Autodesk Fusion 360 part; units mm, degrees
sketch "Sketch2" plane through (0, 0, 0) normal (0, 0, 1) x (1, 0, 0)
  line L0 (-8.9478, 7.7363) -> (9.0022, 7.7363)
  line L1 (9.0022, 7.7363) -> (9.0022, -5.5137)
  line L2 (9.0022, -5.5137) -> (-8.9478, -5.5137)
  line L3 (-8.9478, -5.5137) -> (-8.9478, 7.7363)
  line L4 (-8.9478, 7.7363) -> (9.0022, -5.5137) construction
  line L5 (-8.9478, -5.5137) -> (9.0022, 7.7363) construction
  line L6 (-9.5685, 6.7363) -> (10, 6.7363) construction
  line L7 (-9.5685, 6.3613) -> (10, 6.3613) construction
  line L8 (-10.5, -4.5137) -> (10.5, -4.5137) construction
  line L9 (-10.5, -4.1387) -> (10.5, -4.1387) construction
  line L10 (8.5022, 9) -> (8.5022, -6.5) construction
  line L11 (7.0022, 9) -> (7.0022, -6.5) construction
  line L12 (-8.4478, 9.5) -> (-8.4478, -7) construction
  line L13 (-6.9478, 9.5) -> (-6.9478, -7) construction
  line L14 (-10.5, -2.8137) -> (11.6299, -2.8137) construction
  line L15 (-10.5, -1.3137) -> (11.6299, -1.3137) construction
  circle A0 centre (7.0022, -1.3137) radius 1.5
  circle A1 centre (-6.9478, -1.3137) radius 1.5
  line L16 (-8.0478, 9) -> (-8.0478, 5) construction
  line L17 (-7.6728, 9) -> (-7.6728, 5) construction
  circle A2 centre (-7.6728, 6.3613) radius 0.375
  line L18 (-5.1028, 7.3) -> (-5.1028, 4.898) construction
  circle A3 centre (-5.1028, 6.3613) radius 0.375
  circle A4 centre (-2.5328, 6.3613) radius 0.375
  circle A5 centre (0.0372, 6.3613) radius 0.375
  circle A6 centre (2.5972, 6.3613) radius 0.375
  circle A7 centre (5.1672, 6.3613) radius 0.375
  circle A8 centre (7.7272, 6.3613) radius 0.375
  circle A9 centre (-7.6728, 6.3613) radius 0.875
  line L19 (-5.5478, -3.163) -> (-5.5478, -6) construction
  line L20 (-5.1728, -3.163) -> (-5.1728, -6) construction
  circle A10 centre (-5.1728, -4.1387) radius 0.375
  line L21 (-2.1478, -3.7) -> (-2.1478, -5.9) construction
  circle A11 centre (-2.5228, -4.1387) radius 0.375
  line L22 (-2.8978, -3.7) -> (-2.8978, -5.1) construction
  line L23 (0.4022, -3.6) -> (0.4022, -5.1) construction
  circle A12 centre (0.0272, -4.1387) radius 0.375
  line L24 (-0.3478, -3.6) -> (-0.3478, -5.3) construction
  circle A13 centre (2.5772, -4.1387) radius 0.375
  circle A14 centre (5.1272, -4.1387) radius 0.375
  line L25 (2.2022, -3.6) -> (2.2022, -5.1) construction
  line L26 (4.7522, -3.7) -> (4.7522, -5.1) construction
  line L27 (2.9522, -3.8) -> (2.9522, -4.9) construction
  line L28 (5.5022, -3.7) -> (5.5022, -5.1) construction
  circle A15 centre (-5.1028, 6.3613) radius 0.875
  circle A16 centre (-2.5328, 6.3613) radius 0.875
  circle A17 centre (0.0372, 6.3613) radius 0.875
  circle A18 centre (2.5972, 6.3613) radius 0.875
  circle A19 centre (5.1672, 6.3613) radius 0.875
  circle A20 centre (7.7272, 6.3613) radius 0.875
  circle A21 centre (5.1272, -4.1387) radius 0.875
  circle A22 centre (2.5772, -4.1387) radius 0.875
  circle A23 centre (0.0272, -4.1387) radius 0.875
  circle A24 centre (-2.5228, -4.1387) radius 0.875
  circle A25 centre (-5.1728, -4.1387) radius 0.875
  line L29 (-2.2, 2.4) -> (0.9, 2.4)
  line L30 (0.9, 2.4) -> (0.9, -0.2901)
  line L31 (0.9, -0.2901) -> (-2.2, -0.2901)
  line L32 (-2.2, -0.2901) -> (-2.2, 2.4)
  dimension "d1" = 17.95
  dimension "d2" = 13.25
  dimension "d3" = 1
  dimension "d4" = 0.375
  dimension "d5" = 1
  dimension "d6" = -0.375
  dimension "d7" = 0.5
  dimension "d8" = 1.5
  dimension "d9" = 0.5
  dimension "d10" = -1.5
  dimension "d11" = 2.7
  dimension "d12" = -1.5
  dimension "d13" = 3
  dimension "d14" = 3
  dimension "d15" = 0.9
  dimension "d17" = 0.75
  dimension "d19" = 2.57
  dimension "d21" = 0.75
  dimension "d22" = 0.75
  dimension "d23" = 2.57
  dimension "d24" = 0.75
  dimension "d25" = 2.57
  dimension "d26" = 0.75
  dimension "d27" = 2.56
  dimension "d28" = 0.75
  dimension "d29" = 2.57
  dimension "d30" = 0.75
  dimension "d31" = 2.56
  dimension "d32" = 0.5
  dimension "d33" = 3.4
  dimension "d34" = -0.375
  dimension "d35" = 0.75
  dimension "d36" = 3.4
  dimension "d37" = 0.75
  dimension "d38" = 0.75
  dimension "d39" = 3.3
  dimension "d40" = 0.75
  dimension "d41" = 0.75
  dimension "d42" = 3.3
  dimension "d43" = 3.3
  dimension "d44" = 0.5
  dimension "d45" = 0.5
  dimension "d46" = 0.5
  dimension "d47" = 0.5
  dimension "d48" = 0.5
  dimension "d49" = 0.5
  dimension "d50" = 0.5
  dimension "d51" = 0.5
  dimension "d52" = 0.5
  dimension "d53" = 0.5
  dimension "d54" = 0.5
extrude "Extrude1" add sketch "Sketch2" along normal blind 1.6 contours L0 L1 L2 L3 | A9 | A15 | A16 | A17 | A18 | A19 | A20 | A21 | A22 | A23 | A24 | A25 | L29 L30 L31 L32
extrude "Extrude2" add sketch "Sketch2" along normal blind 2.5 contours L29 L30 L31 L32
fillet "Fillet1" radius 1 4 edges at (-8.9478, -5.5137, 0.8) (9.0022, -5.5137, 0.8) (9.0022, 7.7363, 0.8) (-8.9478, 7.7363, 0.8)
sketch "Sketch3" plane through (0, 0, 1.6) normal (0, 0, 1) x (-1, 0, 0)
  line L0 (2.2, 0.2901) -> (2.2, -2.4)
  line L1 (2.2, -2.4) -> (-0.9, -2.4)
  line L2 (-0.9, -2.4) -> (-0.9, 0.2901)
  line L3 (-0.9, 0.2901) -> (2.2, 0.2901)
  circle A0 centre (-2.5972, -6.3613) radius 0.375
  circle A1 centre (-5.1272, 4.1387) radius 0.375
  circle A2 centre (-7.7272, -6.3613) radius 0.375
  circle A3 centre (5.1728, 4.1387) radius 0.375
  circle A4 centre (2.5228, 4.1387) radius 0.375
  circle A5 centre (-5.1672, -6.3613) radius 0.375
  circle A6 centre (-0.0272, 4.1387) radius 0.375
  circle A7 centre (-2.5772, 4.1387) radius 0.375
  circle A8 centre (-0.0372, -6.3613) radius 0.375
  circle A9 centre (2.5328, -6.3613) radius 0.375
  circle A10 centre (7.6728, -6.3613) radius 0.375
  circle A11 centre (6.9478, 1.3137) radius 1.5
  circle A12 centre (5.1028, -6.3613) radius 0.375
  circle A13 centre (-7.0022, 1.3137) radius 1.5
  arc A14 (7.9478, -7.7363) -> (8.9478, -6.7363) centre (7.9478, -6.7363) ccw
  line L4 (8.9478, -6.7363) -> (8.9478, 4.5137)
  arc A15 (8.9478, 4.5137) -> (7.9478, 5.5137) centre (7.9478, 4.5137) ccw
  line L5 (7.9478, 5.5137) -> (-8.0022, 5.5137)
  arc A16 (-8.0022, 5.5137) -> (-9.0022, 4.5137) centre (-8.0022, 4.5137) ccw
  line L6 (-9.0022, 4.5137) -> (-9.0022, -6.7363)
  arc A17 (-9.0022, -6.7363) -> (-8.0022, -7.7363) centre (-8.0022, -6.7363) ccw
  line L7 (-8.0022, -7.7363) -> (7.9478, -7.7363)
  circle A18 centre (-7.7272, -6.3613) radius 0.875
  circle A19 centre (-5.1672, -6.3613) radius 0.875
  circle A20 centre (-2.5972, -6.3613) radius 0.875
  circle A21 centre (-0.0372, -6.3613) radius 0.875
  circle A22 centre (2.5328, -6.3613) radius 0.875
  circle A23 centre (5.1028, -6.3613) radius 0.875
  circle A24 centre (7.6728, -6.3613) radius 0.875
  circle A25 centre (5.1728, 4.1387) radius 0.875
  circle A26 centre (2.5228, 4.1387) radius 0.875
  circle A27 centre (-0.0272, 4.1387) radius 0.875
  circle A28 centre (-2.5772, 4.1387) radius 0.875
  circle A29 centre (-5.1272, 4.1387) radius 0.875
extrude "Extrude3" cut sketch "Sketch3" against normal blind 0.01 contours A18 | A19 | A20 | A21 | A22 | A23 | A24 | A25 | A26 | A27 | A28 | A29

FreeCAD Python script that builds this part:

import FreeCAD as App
import Part
import Sketcher
from FreeCAD import Vector


def edges_at(feature, points):
    """Names of the edges that pass closest to the given points."""
    edges = feature.Shape.Edges
    near = lambda p: min(range(len(edges)), key=lambda i: edges[i].distToShape(Part.Vertex(*p))[0])
    return sorted({f"Edge{near(p) + 1}" for p in points})


def add_polygon(sketch, points):
    """Adds a closed chain of lines whose ends are joined by coincident constraints."""
    first, n = sketch.GeometryCount, len(points)
    for a, b in zip(points, points[1:] + points[:1]):
        sketch.addGeometry(Part.LineSegment(App.Vector(*a, 0), App.Vector(*b, 0)), False)
    for i in range(n):
        sketch.addConstraint(Sketcher.Constraint("Coincident", first + i, 2, first + (i + 1) % n, 1))

doc = App.newDocument("Part")
params = doc.addObject("Spreadsheet::Sheet", "Params")
for row, (alias, value) in enumerate([
    ("sketch1_diameter", "3 mm"),
    ("sketch1_diameter2", "0.75 mm"),
    ("sketch1_width", "17.95 mm"),
    ("sketch1_height", "13.25 mm"),
    ("pad1_length", "1.6 mm"),
    ("sketch2_width", "3.1 mm"),
    ("sketch2_height", "2.69 mm"),
    ("pad2_length", "2.5 mm"),
    ("fillet_radius", "1 mm"),
    ("sketch3_diameter", "1.75 mm"),
    ("sketch3_diameter2", "0.75 mm"),
    ("pocket1_length", "0.01 mm"),
], start=1):
    params.set(f"A{row}", alias)
    params.set(f"B{row}", "=" + value)
    params.setAlias(f"B{row}", alias)

body = doc.addObject("PartDesign::Body", "Body")

# Sketch on XY plane
sketch1 = doc.addObject("Sketcher::SketchObject", "Sketch")
body.addObject(sketch1)
sketch1.AttachmentSupport = (doc.XY_Plane, [""])
sketch1.MapMode = "FlatFace"
add_polygon(sketch1, [(9.0022, 7.7363), (-8.9478, 7.7363), (-8.9478, -5.5137), (9.0022, -5.5137)])  # lines 0-3
sketch1.addGeometry(Part.Circle(Vector(-6.9478, -1.3137, 0), Vector(0, 0, 1), 1.5), False)  # 4
sketch1.addGeometry(Part.Circle(Vector(7.0022, -1.3137, 0), Vector(0, 0, 1), 1.5), False)  # 5
sketch1.addGeometry(Part.Circle(Vector(-5.1728, -4.1387, 0), Vector(0, 0, 1), 0.375), False)  # 6
sketch1.addGeometry(Part.Circle(Vector(-2.5228, -4.1387, 0), Vector(0, 0, 1), 0.375), False)  # 7
sketch1.addGeometry(Part.Circle(Vector(0.0272, -4.1387, 0), Vector(0, 0, 1), 0.375), False)  # 8
sketch1.addGeometry(Part.Circle(Vector(2.5772, -4.1387, 0), Vector(0, 0, 1), 0.375), False)  # 9
sketch1.addGeometry(Part.Circle(Vector(5.1272, -4.1387, 0), Vector(0, 0, 1), 0.375), False)  # 10
sketch1.addGeometry(Part.Circle(Vector(-7.6728, 6.3613, 0), Vector(0, 0, 1), 0.375), False)  # 11
sketch1.addGeometry(Part.Circle(Vector(-5.1028, 6.3613, 0), Vector(0, 0, 1), 0.375), False)  # 12
sketch1.addGeometry(Part.Circle(Vector(-2.5328, 6.3613, 0), Vector(0, 0, 1), 0.375), False)  # 13
sketch1.addGeometry(Part.Circle(Vector(0.0372, 6.3613, 0), Vector(0, 0, 1), 0.375), False)  # 14
sketch1.addGeometry(Part.Circle(Vector(2.5972, 6.3613, 0), Vector(0, 0, 1), 0.375), False)  # 15
sketch1.addGeometry(Part.Circle(Vector(5.1672, 6.3613, 0), Vector(0, 0, 1), 0.375), False)  # 16
sketch1.addGeometry(Part.Circle(Vector(7.7272, 6.3613, 0), Vector(0, 0, 1), 0.375), False)  # 17
sketch1.addConstraint(Sketcher.Constraint("Horizontal", 0))
sketch1.addConstraint(Sketcher.Constraint("Vertical", 1))
sketch1.addConstraint(Sketcher.Constraint("Horizontal", 2))
sketch1.addConstraint(Sketcher.Constraint("Vertical", 3))
sketch1.addConstraint(Sketcher.Constraint("Equal", 4, 5))
sketch1.addConstraint(Sketcher.Constraint("Equal", 6, 7))
sketch1.addConstraint(Sketcher.Constraint("Equal", 7, 8))
sketch1.addConstraint(Sketcher.Constraint("Equal", 8, 9))
sketch1.addConstraint(Sketcher.Constraint("Equal", 9, 10))
sketch1.addConstraint(Sketcher.Constraint("Equal", 10, 11))
sketch1.addConstraint(Sketcher.Constraint("Equal", 11, 12))
sketch1.addConstraint(Sketcher.Constraint("Equal", 12, 13))
sketch1.addConstraint(Sketcher.Constraint("Equal", 13, 14))
sketch1.addConstraint(Sketcher.Constraint("Equal", 14, 15))
sketch1.addConstraint(Sketcher.Constraint("Equal", 15, 16))
sketch1.addConstraint(Sketcher.Constraint("Equal", 16, 17))
sketch1.addConstraint(Sketcher.Constraint("Horizontal", 4, 3, 5, 3))
sketch1.addConstraint(Sketcher.Constraint("Horizontal", 6, 3, 7, 3))
sketch1.addConstraint(Sketcher.Constraint("Horizontal", 7, 3, 8, 3))
sketch1.addConstraint(Sketcher.Constraint("Horizontal", 8, 3, 9, 3))
sketch1.addConstraint(Sketcher.Constraint("Horizontal", 9, 3, 10, 3))
sketch1.addConstraint(Sketcher.Constraint("Horizontal", 11, 3, 12, 3))
sketch1.addConstraint(Sketcher.Constraint("Horizontal", 12, 3, 13, 3))
sketch1.addConstraint(Sketcher.Constraint("Horizontal", 13, 3, 14, 3))
sketch1.addConstraint(Sketcher.Constraint("Horizontal", 14, 3, 15, 3))
sketch1.addConstraint(Sketcher.Constraint("Horizontal", 15, 3, 16, 3))
sketch1.addConstraint(Sketcher.Constraint("Horizontal", 16, 3, 17, 3))
sketch1.addConstraint(Sketcher.Constraint("Diameter", 4, 3.0))
sketch1.addConstraint(Sketcher.Constraint("Diameter", 6, 0.75))
sketch1.addConstraint(Sketcher.Constraint("DistanceX", 0, 2, 0, 1, 17.95))
sketch1.addConstraint(Sketcher.Constraint("DistanceY", 1, 2, 1, 1, 13.25))
sketch1.addConstraint(Sketcher.Constraint("DistanceX", 11, 3, 12, 3, 2.57))
sketch1.addConstraint(Sketcher.Constraint("DistanceX", 12, 3, 13, 3, 2.57))
sketch1.addConstraint(Sketcher.Constraint("DistanceX", 13, 3, 8, 3, 2.56))
sketch1.addConstraint(Sketcher.Constraint("DistanceX", 13, 3, 14, 3, 2.57))
sketch1.addConstraint(Sketcher.Constraint("DistanceX", 14, 3, 15, 3, 2.56))
sketch1.addConstraint(Sketcher.Constraint("DistanceX", 15, 3, 16, 3, 2.57))
sketch1.addConstraint(Sketcher.Constraint("DistanceX", 16, 3, 17, 3, 2.56))
sketch1.addConstraint(Sketcher.Constraint("DistanceX", 0, 2, 4, 3, 2.0))
sketch1.addConstraint(Sketcher.Constraint("DistanceX", 5, 3, 2, 2, 2.0))
sketch1.addConstraint(Sketcher.Constraint("DistanceX", 6, 3, 8, 3, 5.2))
sketch1.addConstraint(Sketcher.Constraint("DistanceX", 7, 3, 9, 3, 5.1))
sketch1.addConstraint(Sketcher.Constraint("DistanceX", 8, 3, 10, 3, 5.1))
sketch1.addConstraint(Sketcher.Constraint("DistanceY", 6, 3, 11, 3, 10.5))
sketch1.addConstraint(Sketcher.Constraint("DistanceY", 1, 2, 4, 3, 4.2))
sketch1.addConstraint(Sketcher.Constraint("DistanceX", 6, 3, 7, 3, 2.65))
sketch1.addConstraint(Sketcher.Constraint("DistanceX", 4, 3, 6, 3, 1.775))
sketch1.addConstraint(Sketcher.Constraint("DistanceY", 6, 3, 4, 3, 2.825))
sketch1.addConstraint(Sketcher.Constraint("DistanceX", 4, 3, -1, 1, 6.9478))
sketch1.addConstraint(Sketcher.Constraint("DistanceY", 4, 3, -1, 1, 1.3137))
sketch1.setExpression("Constraints[31]", "Params.sketch1_diameter")
sketch1.setExpression("Constraints[32]", "Params.sketch1_diameter2")
sketch1.setExpression("Constraints[33]", "Params.sketch1_width")
sketch1.setExpression("Constraints[34]", "Params.sketch1_height")
pad1 = doc.addObject("PartDesign::Pad", "Pad")
body.addObject(pad1)
pad1.Profile = sketch1
pad1.setExpression("Length", "Params.pad1_length")

# Sketch on XY plane
sketch2 = doc.addObject("Sketcher::SketchObject", "Sketch001")
body.addObject(sketch2)
sketch2.AttachmentSupport = (doc.XY_Plane, [""])
sketch2.MapMode = "FlatFace"
add_polygon(sketch2, [(0.9, 2.4), (-2.2, 2.4), (-2.2, -0.2901), (0.9, -0.2901)])  # lines 0-3
sketch2.addConstraint(Sketcher.Constraint("Horizontal", 0))
sketch2.addConstraint(Sketcher.Constraint("Vertical", 1))
sketch2.addConstraint(Sketcher.Constraint("Horizontal", 2))
sketch2.addConstraint(Sketcher.Constraint("Vertical", 3))
sketch2.addConstraint(Sketcher.Constraint("DistanceX", -1, 1, 2, 2, 0.9))
sketch2.addConstraint(Sketcher.Constraint("DistanceX", 0, 2, 0, 1, 3.1))
sketch2.addConstraint(Sketcher.Constraint("DistanceY", 1, 2, 1, 1, 2.69))
sketch2.addConstraint(Sketcher.Constraint("DistanceY", -1, 1, 0, 2, 2.4))
sketch2.setExpression("Constraints[9]", "Params.sketch2_width")
sketch2.setExpression("Constraints[10]", "Params.sketch2_height")
pad2 = doc.addObject("PartDesign::Pad", "Pad001")
body.addObject(pad2)
pad2.Profile = sketch2
pad2.setExpression("Length", "Params.pad2_length")
doc.recompute()

fillet = doc.addObject("PartDesign::Fillet", "Fillet")
body.addObject(fillet)
fillet.Base = (pad2, edges_at(pad2, [
    (-8.948, -5.514, 0.8),
    (9.002, -5.514, 0.8),
    (9.002, 7.736, 0.8),
    (-8.948, 7.736, 0.8),
]))
fillet.setExpression("Radius", "Params.fillet_radius")

# Sketch on XY plane
sketch3 = doc.addObject("Sketcher::SketchObject", "Sketch002")
body.addObject(sketch3)
sketch3.AttachmentSupport = (doc.XY_Plane, [""])
sketch3.MapMode = "FlatFace"
sketch3.AttachmentOffset = App.Placement(Vector(0, 0, 1.6), App.Rotation())
sketch3.addGeometry(Part.Circle(Vector(7.7272, 6.3613, 0), Vector(0, 0, 1), 0.875), False)
sketch3.addGeometry(Part.Circle(Vector(7.7272, 6.3613, 0), Vector(0, 0, 1), 0.375), False)
sketch3.addGeometry(Part.Circle(Vector(5.1672, 6.3613, 0), Vector(0, 0, 1), 0.875), False)
sketch3.addGeometry(Part.Circle(Vector(5.1672, 6.3613, 0), Vector(0, 0, 1), 0.375), False)
sketch3.addGeometry(Part.Circle(Vector(2.5972, 6.3613, 0), Vector(0, 0, 1), 0.875), False)
sketch3.addGeometry(Part.Circle(Vector(2.5972, 6.3613, 0), Vector(0, 0, 1), 0.375), False)
sketch3.addGeometry(Part.Circle(Vector(0.0372, 6.3613, 0), Vector(0, 0, 1), 0.875), False)
sketch3.addGeometry(Part.Circle(Vector(0.0372, 6.3613, 0), Vector(0, 0, 1), 0.375), False)
sketch3.addGeometry(Part.Circle(Vector(-2.5328, 6.3613, 0), Vector(0, 0, 1), 0.875), False)
sketch3.addGeometry(Part.Circle(Vector(-2.5328, 6.3613, 0), Vector(0, 0, 1), 0.375), False)
sketch3.addGeometry(Part.Circle(Vector(-5.1028, 6.3613, 0), Vector(0, 0, 1), 0.875), False)
sketch3.addGeometry(Part.Circle(Vector(-5.1028, 6.3613, 0), Vector(0, 0, 1), 0.375), False)
sketch3.addGeometry(Part.Circle(Vector(-7.6728, 6.3613, 0), Vector(0, 0, 1), 0.875), False)
sketch3.addGeometry(Part.Circle(Vector(-7.6728, 6.3613, 0), Vector(0, 0, 1), 0.375), False)
sketch3.addGeometry(Part.Circle(Vector(-5.1728, -4.1387, 0), Vector(0, 0, 1), 0.875), False)
sketch3.addGeometry(Part.Circle(Vector(-5.1728, -4.1387, 0), Vector(0, 0, 1), 0.375), False)
sketch3.addGeometry(Part.Circle(Vector(-2.5228, -4.1387, 0), Vector(0, 0, 1), 0.875), False)
sketch3.addGeometry(Part.Circle(Vector(-2.5228, -4.1387, 0), Vector(0, 0, 1), 0.375), False)
sketch3.addGeometry(Part.Circle(Vector(0.0272, -4.1387, 0), Vector(0, 0, 1), 0.875), False)
sketch3.addGeometry(Part.Circle(Vector(0.0272, -4.1387, 0), Vector(0, 0, 1), 0.375), False)
sketch3.addGeometry(Part.Circle(Vector(2.5772, -4.1387, 0), Vector(0, 0, 1), 0.875), False)
sketch3.addGeometry(Part.Circle(Vector(2.5772, -4.1387, 0), Vector(0, 0, 1), 0.375), False)
sketch3.addGeometry(Part.Circle(Vector(5.1272, -4.1387, 0), Vector(0, 0, 1), 0.875), False)
sketch3.addGeometry(Part.Circle(Vector(5.1272, -4.1387, 0), Vector(0, 0, 1), 0.375), False)
sketch3.addConstraint(Sketcher.Constraint("Coincident", 1, 3, 0, 3))
sketch3.addConstraint(Sketcher.Constraint("Coincident", 3, 3, 2, 3))
sketch3.addConstraint(Sketcher.Constraint("Coincident", 5, 3, 4, 3))
sketch3.addConstraint(Sketcher.Constraint("Coincident", 7, 3, 6, 3))
sketch3.addConstraint(Sketcher.Constraint("Coincident", 9, 3, 8, 3))
sketch3.addConstraint(Sketcher.Constraint("Coincident", 11, 3, 10, 3))
sketch3.addConstraint(Sketcher.Constraint("Coincident", 13, 3, 12, 3))
sketch3.addConstraint(Sketcher.Constraint("Coincident", 15, 3, 14, 3))
sketch3.addConstraint(Sketcher.Constraint("Coincident", 17, 3, 16, 3))
sketch3.addConstraint(Sketcher.Constraint("Coincident", 19, 3, 18, 3))
sketch3.addConstraint(Sketcher.Constraint("Coincident", 21, 3, 20, 3))
sketch3.addConstraint(Sketcher.Constraint("Coincident", 23, 3, 22, 3))
sketch3.addConstraint(Sketcher.Constraint("Equal", 0, 2))
sketch3.addConstraint(Sketcher.Constraint("Equal", 1, 3))
sketch3.addConstraint(Sketcher.Constraint("Equal", 2, 4))
sketch3.addConstraint(Sketcher.Constraint("Equal", 3, 5))
sketch3.addConstraint(Sketcher.Constraint("Equal", 4, 6))
sketch3.addConstraint(Sketcher.Constraint("Equal", 5, 7))
sketch3.addConstraint(Sketcher.Constraint("Equal", 6, 8))
sketch3.addConstraint(Sketcher.Constraint("Equal", 7, 9))
sketch3.addConstraint(Sketcher.Constraint("Equal", 8, 10))
sketch3.addConstraint(Sketcher.Constraint("Equal", 9, 11))
sketch3.addConstraint(Sketcher.Constraint("Equal", 10, 12))
sketch3.addConstraint(Sketcher.Constraint("Equal", 11, 13))
sketch3.addConstraint(Sketcher.Constraint("Equal", 12, 14))
sketch3.addConstraint(Sketcher.Constraint("Equal", 13, 15))
sketch3.addConstraint(Sketcher.Constraint("Equal", 14, 16))
sketch3.addConstraint(Sketcher.Constraint("Equal", 15, 17))
sketch3.addConstraint(Sketcher.Constraint("Equal", 16, 18))
sketch3.addConstraint(Sketcher.Constraint("Equal", 17, 19))
sketch3.addConstraint(Sketcher.Constraint("Equal", 18, 20))
sketch3.addConstraint(Sketcher.Constraint("Equal", 19, 21))
sketch3.addConstraint(Sketcher.Constraint("Equal", 20, 22))
sketch3.addConstraint(Sketcher.Constraint("Equal", 21, 23))
sketch3.addConstraint(Sketcher.Constraint("Horizontal", 1, 3, 2, 3))
sketch3.addConstraint(Sketcher.Constraint("Horizontal", 3, 3, 4, 3))
sketch3.addConstraint(Sketcher.Constraint("Horizontal", 5, 3, 6, 3))
sketch3.addConstraint(Sketcher.Constraint("Horizontal", 7, 3, 8, 3))
sketch3.addConstraint(Sketcher.Constraint("Horizontal", 9, 3, 10, 3))
sketch3.addConstraint(Sketcher.Constraint("Horizontal", 11, 3, 12, 3))
sketch3.addConstraint(Sketcher.Constraint("Horizontal", 15, 3, 16, 3))
sketch3.addConstraint(Sketcher.Constraint("Horizontal", 17, 3, 18, 3))
sketch3.addConstraint(Sketcher.Constraint("Horizontal", 19, 3, 20, 3))
sketch3.addConstraint(Sketcher.Constraint("Horizontal", 21, 3, 22, 3))
sketch3.addConstraint(Sketcher.Constraint("Diameter", 0, 1.75))
sketch3.addConstraint(Sketcher.Constraint("Diameter", 1, 0.75))
sketch3.addConstraint(Sketcher.Constraint("DistanceX", 8, 3, 2, 3, 7.7))
sketch3.addConstraint(Sketcher.Constraint("DistanceX", 10, 3, 4, 3, 7.7))
sketch3.addConstraint(Sketcher.Constraint("DistanceY", 14, 3, 10, 3, 10.5))
sketch3.addConstraint(Sketcher.Constraint("DistanceX", 12, 3, 14, 3, 2.5))
sketch3.addConstraint(Sketcher.Constraint("DistanceX", 14, 3, 18, 3, 5.2))
sketch3.addConstraint(Sketcher.Constraint("DistanceX", 16, 3, 20, 3, 5.1))
sketch3.addConstraint(Sketcher.Constraint("DistanceX", 18, 3, 22, 3, 5.1))
sketch3.addConstraint(Sketcher.Constraint("DistanceX", 2, 3, 0, 3, 2.56))
sketch3.addConstraint(Sketcher.Constraint("DistanceX", 4, 3, 2, 3, 2.57))
sketch3.addConstraint(Sketcher.Constraint("DistanceX", 6, 3, 4, 3, 2.56))
sketch3.addConstraint(Sketcher.Constraint("DistanceX", 12, 3, 10, 3, 2.57))
sketch3.addConstraint(Sketcher.Constraint("DistanceX", 14, 3, 16, 3, 2.65))
sketch3.addConstraint(Sketcher.Constraint("DistanceX", -1, 1, 0, 3, 7.7272))
sketch3.addConstraint(Sketcher.Constraint("DistanceY", -1, 1, 0, 3, 6.3613))
sketch3.setExpression("Constraints[44]", "Params.sketch3_diameter")
sketch3.setExpression("Constraints[45]", "Params.sketch3_diameter2")
pocket1 = doc.addObject("PartDesign::Pocket", "Pocket")
body.addObject(pocket1)
pocket1.Profile = sketch3
pocket1.setExpression("Length", "Params.pocket1_length")

doc.recompute()
